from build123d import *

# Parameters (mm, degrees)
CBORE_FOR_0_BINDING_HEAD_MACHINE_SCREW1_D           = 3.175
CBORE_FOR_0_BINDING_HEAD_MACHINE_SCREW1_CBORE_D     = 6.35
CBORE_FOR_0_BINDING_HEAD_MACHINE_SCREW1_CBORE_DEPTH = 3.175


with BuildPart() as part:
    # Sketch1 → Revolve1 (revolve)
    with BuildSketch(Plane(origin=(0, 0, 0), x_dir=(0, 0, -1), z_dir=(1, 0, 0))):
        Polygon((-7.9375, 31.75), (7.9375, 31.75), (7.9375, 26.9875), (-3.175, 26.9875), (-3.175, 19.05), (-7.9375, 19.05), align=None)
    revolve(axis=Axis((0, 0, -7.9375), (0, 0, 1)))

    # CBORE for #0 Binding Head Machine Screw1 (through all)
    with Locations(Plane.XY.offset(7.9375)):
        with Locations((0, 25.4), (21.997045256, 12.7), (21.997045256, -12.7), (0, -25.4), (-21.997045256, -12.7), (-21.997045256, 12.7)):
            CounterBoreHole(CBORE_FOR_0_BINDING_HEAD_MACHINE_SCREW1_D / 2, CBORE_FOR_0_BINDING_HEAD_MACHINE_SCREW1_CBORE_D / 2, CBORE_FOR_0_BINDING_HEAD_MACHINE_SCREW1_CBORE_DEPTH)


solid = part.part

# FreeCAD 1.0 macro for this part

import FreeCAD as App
import Part
import Sketcher
Q = App.Units.Quantity


def add_polygon(sketch, points):
    """Adds a closed chain of lines whose ends are joined by coincident constraints."""
    first, n = sketch.GeometryCount, len(points)
    for a, b in zip(points, points[1:] + points[:1]):
        sketch.addGeometry(Part.LineSegment(App.Vector(*a, 0), App.Vector(*b, 0)), False)
    for i in range(n):
        sketch.addConstraint(Sketcher.Constraint("Coincident", first + i, 2, first + (i + 1) % n, 1))

doc = App.newDocument("Part")
body = doc.addObject("PartDesign::Body", "Body")

# Sketch on YZ plane
sketch1 = body.newObject("Sketcher::SketchObject", "Sketch")
sketch1.AttachmentSupport = (doc.getObject("YZ_Plane"), [""])
sketch1.MapMode = "FlatFace"
add_polygon(sketch1, [(31.8, -7.9), (31.8, 7.9), (19.1, 7.9), (19.1, 3.2), (27, 3.2), (27, -7.9)])  # lines 0-5
sketch1.addConstraint(Sketcher.Constraint("Vertical", 0))
sketch1.addConstraint(Sketcher.Constraint("Horizontal", 1))
sketch1.addConstraint(Sketcher.Constraint("Vertical", 2))
sketch1.addConstraint(Sketcher.Constraint("Horizontal", 3))
sketch1.addConstraint(Sketcher.Constraint("Vertical", 4))
sketch1.addConstraint(Sketcher.Constraint("Horizontal", 5))
sketch1.addConstraint(Sketcher.Constraint("Equal", 5, 2))
sketch1.addConstraint(Sketcher.Constraint("DistanceX", 1, 2, 1, 1, Q("0.5 in")))
sketch1.addConstraint(Sketcher.Constraint("DistanceX", 3, 1, 3, 2, Q("0.3125 in")))
sketch1.addConstraint(Sketcher.Constraint("DistanceY", 0, 1, 0, 2, Q("0.625 in")))
sketch1.addConstraint(Sketcher.Constraint("DistanceX", -1, 1, 0, 2, Q("1.25 in")))
sketch1.addConstraint(Sketcher.Constraint("DistanceY", -1, 1, 0, 2, Q("0.3125 in")))
revolution = body.newObject("PartDesign::Revolution", "Revolution")
revolution.Profile = sketch1
revolution.ReferenceAxis = (sketch1, ["V_Axis"])
revolution.Angle = 360

# Sketch on XY plane
sketch2 = body.newObject("Sketcher::SketchObject", "Sketch001")
sketch2.AttachmentSupport = (doc.getObject("XY_Plane"), [""])
sketch2.MapMode = "FlatFace"
sketch2.AttachmentOffset = App.Placement(App.Vector(0, 0, 0.3125 * 25.4), App.Rotation())
sketch2.addGeometry(Part.Circle(App.Vector(0, 25.4, 0), App.Vector(0, 0, 1), 1.6), False)
sketch2.addGeometry(Part.Circle(App.Vector(22, 12.7, 0), App.Vector(0, 0, 1), 1.6), False)
sketch2.addGeometry(Part.Circle(App.Vector(22, -12.7, 0), App.Vector(0, 0, 1), 1.6), False)
sketch2.addGeometry(Part.Circle(App.Vector(0, -25.4, 0), App.Vector(0, 0, 1), 1.6), False)
sketch2.addGeometry(Part.Circle(App.Vector(-22, -12.7, 0), App.Vector(0, 0, 1), 1.6), False)
sketch2.addGeometry(Part.Circle(App.Vector(-22, 12.7, 0), App.Vector(0, 0, 1), 1.6), False)
sketch2.addConstraint(Sketcher.Constraint("Equal", 0, 1))
sketch2.addConstraint(Sketcher.Constraint("Equal", 1, 2))
sketch2.addConstraint(Sketcher.Constraint("Equal", 2, 3))
sketch2.addConstraint(Sketcher.Constraint("Equal", 3, 4))
sketch2.addConstraint(Sketcher.Constraint("Equal", 4, 5))
sketch2.addConstraint(Sketcher.Constraint("Symmetric", 0, 3, 3, 3, -1, 1))
sketch2.addConstraint(Sketcher.Constraint("Symmetric", 1, 3, 4, 3, -1, 1))
sketch2.addConstraint(Sketcher.Constraint("Symmetric", 2, 3, 5, 3, -1, 1))
sketch2.addConstraint(Sketcher.Constraint("Symmetric", 2, 3, 4, 3, -2))
sketch2.addConstraint(Sketcher.Constraint("PointOnObject", 0, 3, -2))
sketch2.addConstraint(Sketcher.Constraint("Diameter", 0, Q("0.125 in")))
sketch2.addConstraint(Sketcher.Constraint("DistanceY", -1, 1, 0, 3, Q("1 in")))
sketch2.addConstraint(Sketcher.Constraint("DistanceY", 2, 3, 1, 3, Q("1 in")))
sketch2.addConstraint(Sketcher.Constraint("DistanceX", 4, 3, 2, 3, 43.994091))
doc.recompute()
hole = body.newObject("PartDesign::Hole", "Hole")
hole.Profile = sketch2
hole.ThreadType = "None"
hole.Diameter = Q("0.125 in")
hole.DepthType = "ThroughAll"
hole.HoleCutType = "Counterbore"
hole.HoleCutDiameter = Q("0.25 in")
hole.HoleCutDepth = Q("0.125 in")

doc.recompute()
